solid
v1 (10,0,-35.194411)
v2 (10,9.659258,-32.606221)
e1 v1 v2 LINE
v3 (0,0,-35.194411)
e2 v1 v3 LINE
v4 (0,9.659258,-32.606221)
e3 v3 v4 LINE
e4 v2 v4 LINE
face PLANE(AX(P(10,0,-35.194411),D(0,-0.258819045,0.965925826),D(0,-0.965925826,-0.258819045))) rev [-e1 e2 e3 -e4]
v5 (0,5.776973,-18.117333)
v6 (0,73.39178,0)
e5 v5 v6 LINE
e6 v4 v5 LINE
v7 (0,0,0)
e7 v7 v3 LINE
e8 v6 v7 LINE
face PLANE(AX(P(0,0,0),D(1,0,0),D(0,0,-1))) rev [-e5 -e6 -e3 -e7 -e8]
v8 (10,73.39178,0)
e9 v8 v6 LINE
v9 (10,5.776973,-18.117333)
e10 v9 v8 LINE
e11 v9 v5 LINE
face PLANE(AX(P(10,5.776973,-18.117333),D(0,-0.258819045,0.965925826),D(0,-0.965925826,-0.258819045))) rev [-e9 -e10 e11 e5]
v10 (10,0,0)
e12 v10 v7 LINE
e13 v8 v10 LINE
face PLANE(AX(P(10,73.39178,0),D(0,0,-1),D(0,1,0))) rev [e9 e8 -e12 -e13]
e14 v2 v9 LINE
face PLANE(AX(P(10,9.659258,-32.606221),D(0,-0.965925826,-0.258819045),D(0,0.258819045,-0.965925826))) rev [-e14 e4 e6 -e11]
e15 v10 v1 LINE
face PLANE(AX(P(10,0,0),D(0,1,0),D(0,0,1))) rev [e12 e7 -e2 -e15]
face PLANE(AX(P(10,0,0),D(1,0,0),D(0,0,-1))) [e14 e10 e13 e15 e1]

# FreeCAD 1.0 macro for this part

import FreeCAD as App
import Part
import Sketcher
from FreeCAD import Vector
Q = App.Units.Quantity

doc = App.newDocument("Part")
body = doc.addObject("PartDesign::Body", "Body")

# Sketch on YZ plane
sketch1 = doc.addObject("Sketcher::SketchObject", "Sketch")
body.addObject(sketch1)
sketch1.AttachmentSupport = (doc.YZ_Plane, [""])
sketch1.MapMode = "FlatFace"
sketch1.addGeometry(Part.LineSegment(Vector(0, 0, 0), Vector(0, -35, 0)), False)
sketch1.addGeometry(Part.LineSegment(Vector(0, -35, 0), Vector(10, -33, 0)), False)
sketch1.addGeometry(Part.LineSegment(Vector(10, -33, 0), Vector(6, -18, 0)), False)
sketch1.addGeometry(Part.LineSegment(Vector(6, -18, 0), Vector(73, 0, 0)), False)
sketch1.addGeometry(Part.LineSegment(Vector(73, 0, 0), Vector(0, 0, 0)), False)
sketch1.addConstraint(Sketcher.Constraint("Coincident", 0, 2, 1, 1))
sketch1.addConstraint(Sketcher.Constraint("Coincident", 1, 2, 2, 1))
sketch1.addConstraint(Sketcher.Constraint("Coincident", 2, 2, 3, 1))
sketch1.addConstraint(Sketcher.Constraint("Coincident", 3, 2, 4, 1))
sketch1.addConstraint(Sketcher.Constraint("Coincident", 4, 2, 0, 1))
sketch1.addConstraint(Sketcher.Constraint("Vertical", 0))
sketch1.addConstraint(Sketcher.Constraint("Horizontal", 4))
sketch1.addConstraint(Sketcher.Constraint("Coincident", 4, 2, -1, 1))
sketch1.addConstraint(Sketcher.Constraint("Perpendicular", 1, 2))
sketch1.addConstraint(Sketcher.Constraint("Perpendicular", 2, 3))
sketch1.addConstraint(Sketcher.Constraint("Angle", 1, Q("15 deg")))
sketch1.addConstraint(Sketcher.Constraint("Distance", 1, 10.0))
sketch1.addConstraint(Sketcher.Constraint("Distance", 2, 15.0))
sketch1.addConstraint(Sketcher.Constraint("Distance", 3, 70.0))
pad1 = doc.addObject("PartDesign::Pad", "Pad")
body.addObject(pad1)
pad1.Profile = sketch1
pad1.Length = 10

doc.recompute()
